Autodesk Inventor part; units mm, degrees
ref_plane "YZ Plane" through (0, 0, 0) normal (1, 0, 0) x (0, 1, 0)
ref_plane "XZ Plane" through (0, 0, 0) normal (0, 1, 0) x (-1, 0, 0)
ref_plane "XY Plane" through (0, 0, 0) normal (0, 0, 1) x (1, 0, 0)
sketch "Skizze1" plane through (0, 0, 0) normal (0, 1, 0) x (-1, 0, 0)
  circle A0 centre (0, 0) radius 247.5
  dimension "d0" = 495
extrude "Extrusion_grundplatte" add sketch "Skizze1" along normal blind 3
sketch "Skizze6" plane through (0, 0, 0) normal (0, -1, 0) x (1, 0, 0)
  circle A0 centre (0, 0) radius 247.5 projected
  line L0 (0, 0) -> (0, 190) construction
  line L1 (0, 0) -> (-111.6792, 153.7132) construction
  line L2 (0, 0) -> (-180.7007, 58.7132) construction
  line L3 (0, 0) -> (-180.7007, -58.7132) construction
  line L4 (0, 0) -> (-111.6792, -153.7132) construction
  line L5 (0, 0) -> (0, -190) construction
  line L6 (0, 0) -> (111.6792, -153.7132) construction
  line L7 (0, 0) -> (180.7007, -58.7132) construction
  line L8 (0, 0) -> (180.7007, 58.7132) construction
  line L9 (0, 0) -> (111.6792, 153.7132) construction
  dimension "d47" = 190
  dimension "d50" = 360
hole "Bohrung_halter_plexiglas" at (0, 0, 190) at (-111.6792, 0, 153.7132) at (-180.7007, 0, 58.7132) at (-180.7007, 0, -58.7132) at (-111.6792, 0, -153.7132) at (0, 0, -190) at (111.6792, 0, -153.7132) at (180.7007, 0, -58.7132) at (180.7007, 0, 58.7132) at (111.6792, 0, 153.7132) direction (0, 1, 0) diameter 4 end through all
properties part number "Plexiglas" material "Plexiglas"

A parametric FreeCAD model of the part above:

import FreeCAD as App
import Part
import Sketcher

V = App.Vector

doc = App.newDocument("Part")
body = doc.addObject("PartDesign::Body", "Body")

# Sketch on XZ plane
sketch1 = body.newObject("Sketcher::SketchObject", "Sketch")
sketch1.AttachmentSupport = (doc.getObject("XZ_Plane"), [""])
sketch1.MapMode = "FlatFace"
sketch1.addGeometry(Part.Circle(V(0, 0, 0), V(0, 0, 1), 248), False)
sketch1.addConstraint([
    Sketcher.Constraint("Coincident", 0, 3, -1, 1),
    Sketcher.Constraint("Diameter", 0, 495.0),
])
pad1 = body.newObject("PartDesign::Pad", "Pad")
pad1.Profile = sketch1
pad1.Length = 3
pad1.Reversed = True

# Sketch on XZ plane
sketch2 = body.newObject("Sketcher::SketchObject", "Sketch001")
sketch2.AttachmentSupport = (doc.getObject("XZ_Plane"), [""])
sketch2.MapMode = "FlatFace"
sketch2.addGeometry([
    Part.Circle(V(0, 190, 0), V(0, 0, 1), 2),  # 0
    Part.Circle(V(-111.7, 153.7, 0), V(0, 0, 1), 2),  # 1
    Part.Circle(V(-180.7, 58.7, 0), V(0, 0, 1), 2),  # 2
    Part.Circle(V(-180.7, -58.7, 0), V(0, 0, 1), 2),  # 3
    Part.Circle(V(-111.7, -153.7, 0), V(0, 0, 1), 2),  # 4
    Part.Circle(V(0, -190, 0), V(0, 0, 1), 2),  # 5
    Part.Circle(V(111.7, -153.7, 0), V(0, 0, 1), 2),  # 6
    Part.Circle(V(180.7, -58.7, 0), V(0, 0, 1), 2),  # 7
    Part.Circle(V(180.7, 58.7, 0), V(0, 0, 1), 2),  # 8
    Part.Circle(V(111.7, 153.7, 0), V(0, 0, 1), 2),  # 9
], False)
sketch2.addConstraint([
    Sketcher.Constraint("Equal", 0, 1),
    Sketcher.Constraint("Equal", 1, 2),
    Sketcher.Constraint("Equal", 2, 3),
    Sketcher.Constraint("Equal", 3, 4),
    Sketcher.Constraint("Equal", 4, 5),
    Sketcher.Constraint("Equal", 5, 6),
    Sketcher.Constraint("Equal", 6, 7),
    Sketcher.Constraint("Equal", 7, 8),
    Sketcher.Constraint("Equal", 8, 9),
    Sketcher.Constraint("Symmetric", 0, 3, 5, 3, -1, 1),
    Sketcher.Constraint("Symmetric", 1, 3, 6, 3, -1, 1),
    Sketcher.Constraint("Symmetric", 2, 3, 7, 3, -1, 1),
    Sketcher.Constraint("Symmetric", 3, 3, 8, 3, -1, 1),
    Sketcher.Constraint("Symmetric", 4, 3, 9, 3, -1, 1),
    Sketcher.Constraint("Symmetric", 4, 3, 6, 3, -2),
    Sketcher.Constraint("Symmetric", 3, 3, 7, 3, -2),
    Sketcher.Constraint("PointOnObject", 0, 3, -2),
    Sketcher.Constraint("Diameter", 0, 4.0),
    Sketcher.Constraint("DistanceY", -1, 1, 0, 3, 190.0),
    Sketcher.Constraint("DistanceY", 2, 3, 1, 3, 95.0),
    Sketcher.Constraint("DistanceX", 3, 3, 6, 3, 292.38),
    Sketcher.Constraint("DistanceX", 1, 3, -1, 1, 111.6792),
    Sketcher.Constraint("DistanceY", -1, 1, 1, 3, 153.7132),
])
doc.recompute()
hole = body.newObject("PartDesign::Hole", "Hole")
hole.Profile = sketch2
hole.ThreadType = "None"
hole.Diameter = 4
hole.DepthType = "ThroughAll"

doc.recompute()
